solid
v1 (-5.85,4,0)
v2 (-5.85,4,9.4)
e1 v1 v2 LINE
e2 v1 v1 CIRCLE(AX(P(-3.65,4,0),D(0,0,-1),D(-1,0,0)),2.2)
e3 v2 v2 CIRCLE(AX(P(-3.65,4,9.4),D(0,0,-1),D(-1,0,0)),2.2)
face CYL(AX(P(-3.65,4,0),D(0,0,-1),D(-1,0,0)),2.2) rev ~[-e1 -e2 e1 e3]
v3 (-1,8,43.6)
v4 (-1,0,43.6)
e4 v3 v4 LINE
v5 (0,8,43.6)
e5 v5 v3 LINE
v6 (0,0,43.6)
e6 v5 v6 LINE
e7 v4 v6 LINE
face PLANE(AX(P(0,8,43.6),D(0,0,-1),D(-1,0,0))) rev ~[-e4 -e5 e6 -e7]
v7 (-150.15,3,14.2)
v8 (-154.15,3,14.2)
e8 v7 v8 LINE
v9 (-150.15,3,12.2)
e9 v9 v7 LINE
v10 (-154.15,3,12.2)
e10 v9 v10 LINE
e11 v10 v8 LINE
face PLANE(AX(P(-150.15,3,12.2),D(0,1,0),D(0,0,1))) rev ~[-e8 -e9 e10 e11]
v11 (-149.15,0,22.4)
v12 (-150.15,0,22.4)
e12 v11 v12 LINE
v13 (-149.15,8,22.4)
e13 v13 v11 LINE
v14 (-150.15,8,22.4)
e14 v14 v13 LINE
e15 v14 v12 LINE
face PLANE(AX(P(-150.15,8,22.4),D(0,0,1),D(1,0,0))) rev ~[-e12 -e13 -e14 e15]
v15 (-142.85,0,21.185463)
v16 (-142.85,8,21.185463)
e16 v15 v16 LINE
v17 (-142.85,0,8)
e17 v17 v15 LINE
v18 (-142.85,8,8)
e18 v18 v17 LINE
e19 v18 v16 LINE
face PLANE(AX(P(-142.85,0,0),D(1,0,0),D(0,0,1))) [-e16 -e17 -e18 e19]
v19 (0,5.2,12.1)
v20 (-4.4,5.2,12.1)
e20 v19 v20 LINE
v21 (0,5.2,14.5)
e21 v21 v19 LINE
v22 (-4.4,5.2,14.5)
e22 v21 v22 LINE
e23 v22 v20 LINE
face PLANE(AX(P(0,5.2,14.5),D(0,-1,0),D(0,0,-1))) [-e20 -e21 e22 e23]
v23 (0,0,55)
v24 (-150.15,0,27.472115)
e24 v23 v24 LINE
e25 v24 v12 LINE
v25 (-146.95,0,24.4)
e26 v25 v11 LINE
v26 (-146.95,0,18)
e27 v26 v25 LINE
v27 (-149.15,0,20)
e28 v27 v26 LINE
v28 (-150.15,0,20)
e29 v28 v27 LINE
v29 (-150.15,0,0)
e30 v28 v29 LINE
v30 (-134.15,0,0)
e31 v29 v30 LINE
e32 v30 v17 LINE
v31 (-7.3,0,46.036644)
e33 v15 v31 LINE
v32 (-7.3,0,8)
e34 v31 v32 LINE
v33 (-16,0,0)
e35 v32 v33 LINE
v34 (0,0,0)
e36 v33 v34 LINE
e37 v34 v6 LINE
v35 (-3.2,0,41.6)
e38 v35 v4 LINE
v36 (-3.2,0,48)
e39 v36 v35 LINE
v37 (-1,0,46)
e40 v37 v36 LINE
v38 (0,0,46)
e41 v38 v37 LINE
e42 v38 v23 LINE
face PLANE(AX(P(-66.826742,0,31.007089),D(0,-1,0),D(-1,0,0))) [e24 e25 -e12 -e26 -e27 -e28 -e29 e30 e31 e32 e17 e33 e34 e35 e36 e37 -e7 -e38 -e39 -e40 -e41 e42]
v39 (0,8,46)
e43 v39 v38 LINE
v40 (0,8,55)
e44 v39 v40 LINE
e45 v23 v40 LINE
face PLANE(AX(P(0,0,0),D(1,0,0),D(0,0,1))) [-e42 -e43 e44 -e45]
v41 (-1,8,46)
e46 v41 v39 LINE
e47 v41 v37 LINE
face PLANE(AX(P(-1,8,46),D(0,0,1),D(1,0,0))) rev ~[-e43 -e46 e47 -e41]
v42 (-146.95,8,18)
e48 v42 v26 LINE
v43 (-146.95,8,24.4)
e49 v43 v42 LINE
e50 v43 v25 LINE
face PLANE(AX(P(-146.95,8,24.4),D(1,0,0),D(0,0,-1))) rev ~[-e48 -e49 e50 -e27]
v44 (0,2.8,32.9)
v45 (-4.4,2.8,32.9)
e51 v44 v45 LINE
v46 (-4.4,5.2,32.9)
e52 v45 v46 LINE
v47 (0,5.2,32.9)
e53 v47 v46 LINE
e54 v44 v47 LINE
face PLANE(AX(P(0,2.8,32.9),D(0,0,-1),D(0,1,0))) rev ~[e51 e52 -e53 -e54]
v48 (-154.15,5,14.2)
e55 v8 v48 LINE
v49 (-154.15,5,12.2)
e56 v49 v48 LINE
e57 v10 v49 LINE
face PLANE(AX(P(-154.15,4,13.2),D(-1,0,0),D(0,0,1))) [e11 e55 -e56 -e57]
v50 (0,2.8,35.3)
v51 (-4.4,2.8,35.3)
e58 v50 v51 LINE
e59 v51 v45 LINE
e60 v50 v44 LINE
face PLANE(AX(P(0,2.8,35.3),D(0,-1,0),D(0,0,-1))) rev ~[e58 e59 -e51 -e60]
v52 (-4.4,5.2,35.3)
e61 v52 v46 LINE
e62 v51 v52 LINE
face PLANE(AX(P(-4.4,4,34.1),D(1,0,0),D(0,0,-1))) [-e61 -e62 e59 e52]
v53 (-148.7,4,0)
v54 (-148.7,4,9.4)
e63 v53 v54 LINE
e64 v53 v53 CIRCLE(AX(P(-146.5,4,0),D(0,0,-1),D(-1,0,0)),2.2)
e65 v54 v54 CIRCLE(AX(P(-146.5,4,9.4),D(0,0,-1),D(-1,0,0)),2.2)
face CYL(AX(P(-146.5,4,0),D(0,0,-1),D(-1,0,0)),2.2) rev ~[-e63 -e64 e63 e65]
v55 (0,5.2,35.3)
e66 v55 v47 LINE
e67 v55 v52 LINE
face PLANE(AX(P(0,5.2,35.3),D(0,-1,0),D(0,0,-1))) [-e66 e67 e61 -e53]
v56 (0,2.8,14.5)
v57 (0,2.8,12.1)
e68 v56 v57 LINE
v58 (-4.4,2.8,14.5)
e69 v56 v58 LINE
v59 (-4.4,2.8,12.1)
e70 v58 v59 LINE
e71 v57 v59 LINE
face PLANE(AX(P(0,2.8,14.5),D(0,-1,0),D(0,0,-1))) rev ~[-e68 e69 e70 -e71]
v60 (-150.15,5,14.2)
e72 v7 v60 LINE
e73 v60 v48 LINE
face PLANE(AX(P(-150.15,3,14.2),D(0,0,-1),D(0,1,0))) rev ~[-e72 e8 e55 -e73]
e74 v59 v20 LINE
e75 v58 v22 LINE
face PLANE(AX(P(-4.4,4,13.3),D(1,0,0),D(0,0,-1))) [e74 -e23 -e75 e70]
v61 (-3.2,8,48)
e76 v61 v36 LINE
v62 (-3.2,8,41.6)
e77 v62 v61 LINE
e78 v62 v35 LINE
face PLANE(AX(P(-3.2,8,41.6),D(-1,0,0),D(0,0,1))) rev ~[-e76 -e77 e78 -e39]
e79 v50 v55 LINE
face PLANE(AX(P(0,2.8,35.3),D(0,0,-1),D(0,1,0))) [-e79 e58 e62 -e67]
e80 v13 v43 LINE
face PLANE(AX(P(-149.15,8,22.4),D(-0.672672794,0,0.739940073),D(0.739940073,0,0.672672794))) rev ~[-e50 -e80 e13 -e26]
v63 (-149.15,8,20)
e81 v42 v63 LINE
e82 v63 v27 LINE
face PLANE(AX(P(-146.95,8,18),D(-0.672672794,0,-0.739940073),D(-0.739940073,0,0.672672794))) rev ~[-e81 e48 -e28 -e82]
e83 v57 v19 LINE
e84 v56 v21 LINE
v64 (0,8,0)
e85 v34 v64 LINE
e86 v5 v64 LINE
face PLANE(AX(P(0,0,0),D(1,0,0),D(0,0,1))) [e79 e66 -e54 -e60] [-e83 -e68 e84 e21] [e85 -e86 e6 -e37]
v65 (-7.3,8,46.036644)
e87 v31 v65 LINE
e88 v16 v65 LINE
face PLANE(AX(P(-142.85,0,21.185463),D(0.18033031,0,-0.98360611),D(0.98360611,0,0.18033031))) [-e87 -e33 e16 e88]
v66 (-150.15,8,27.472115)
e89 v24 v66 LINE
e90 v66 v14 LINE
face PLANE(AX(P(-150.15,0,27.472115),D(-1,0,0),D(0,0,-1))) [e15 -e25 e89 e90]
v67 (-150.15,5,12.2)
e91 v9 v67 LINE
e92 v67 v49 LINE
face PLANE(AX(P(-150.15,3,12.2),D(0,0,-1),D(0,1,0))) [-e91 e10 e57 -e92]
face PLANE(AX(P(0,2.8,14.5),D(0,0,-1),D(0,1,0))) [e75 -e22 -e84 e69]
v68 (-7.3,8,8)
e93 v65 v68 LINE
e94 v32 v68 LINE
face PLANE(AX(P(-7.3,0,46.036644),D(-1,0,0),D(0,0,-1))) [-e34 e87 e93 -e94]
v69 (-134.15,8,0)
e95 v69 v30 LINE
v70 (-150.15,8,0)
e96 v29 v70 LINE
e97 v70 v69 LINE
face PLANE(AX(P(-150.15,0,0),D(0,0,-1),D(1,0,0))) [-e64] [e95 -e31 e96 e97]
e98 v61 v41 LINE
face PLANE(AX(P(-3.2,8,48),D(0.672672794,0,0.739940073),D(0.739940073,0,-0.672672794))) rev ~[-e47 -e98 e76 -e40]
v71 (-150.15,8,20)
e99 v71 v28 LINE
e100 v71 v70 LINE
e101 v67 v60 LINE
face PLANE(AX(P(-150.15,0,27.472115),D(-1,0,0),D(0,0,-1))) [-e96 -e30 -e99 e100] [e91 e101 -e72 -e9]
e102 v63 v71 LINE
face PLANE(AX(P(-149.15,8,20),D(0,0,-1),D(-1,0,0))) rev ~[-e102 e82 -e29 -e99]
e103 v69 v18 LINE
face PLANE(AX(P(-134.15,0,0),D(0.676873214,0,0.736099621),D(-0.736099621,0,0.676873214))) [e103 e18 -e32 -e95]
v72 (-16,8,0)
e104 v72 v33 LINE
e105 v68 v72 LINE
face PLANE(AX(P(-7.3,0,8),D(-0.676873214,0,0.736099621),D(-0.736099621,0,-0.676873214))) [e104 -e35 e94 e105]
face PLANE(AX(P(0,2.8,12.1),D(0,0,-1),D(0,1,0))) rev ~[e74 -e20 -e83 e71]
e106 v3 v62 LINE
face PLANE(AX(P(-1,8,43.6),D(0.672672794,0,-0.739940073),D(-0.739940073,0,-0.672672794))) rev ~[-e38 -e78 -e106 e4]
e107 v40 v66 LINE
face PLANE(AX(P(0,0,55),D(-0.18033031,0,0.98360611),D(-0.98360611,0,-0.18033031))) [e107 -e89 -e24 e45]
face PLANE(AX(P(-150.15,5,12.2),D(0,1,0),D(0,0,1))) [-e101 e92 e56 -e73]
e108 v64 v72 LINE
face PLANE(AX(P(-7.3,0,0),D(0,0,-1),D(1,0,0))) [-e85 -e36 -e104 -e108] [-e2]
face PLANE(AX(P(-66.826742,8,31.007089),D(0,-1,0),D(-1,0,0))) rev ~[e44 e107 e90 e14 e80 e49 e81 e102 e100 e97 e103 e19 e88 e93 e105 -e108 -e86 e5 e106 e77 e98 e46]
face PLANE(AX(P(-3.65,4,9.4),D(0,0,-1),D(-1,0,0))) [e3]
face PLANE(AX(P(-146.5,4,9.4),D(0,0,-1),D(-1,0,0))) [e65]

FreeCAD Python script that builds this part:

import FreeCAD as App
import Part
import Sketcher

doc = App.newDocument("Part")
body = doc.addObject("PartDesign::Body", "Body")

# Sketch on XZ plane
sketch1 = body.newObject("Sketcher::SketchObject", "Sketch")
sketch1.AttachmentSupport = (doc.getObject("XZ_Plane"), [""])
sketch1.MapMode = "FlatFace"
sketch1.addGeometry([
    Part.LineSegment(App.Vector(0, 55, 0), App.Vector(0, 0, 0)),  # 0
    Part.LineSegment(App.Vector(0, 0, 0), App.Vector(-7.3, 0, 0)),  # 1
    Part.LineSegment(App.Vector(-7.3, 0, 0), App.Vector(-7.3, 46.036644, 0)),  # 2
    Part.LineSegment(App.Vector(-7.3, 46.036644, 0), App.Vector(-142.85, 21.185463, 0)),  # 3
    Part.LineSegment(App.Vector(-142.85, 21.185463, 0), App.Vector(-142.85, 0, 0)),  # 4
    Part.LineSegment(App.Vector(-142.85, 0, 0), App.Vector(-150.15, 0, 0)),  # 5
    Part.LineSegment(App.Vector(-150.15, 0, 0), App.Vector(-150.15, 27.472115, 0)),  # 6
    Part.LineSegment(App.Vector(-150.15, 27.472115, 0), App.Vector(0, 55, 0)),  # 7
], False)
sketch1.addConstraint([
    Sketcher.Constraint("Coincident", 0, 2, 1, 1),
    Sketcher.Constraint("Coincident", 1, 2, 2, 1),
    Sketcher.Constraint("Coincident", 2, 2, 3, 1),
    Sketcher.Constraint("Coincident", 3, 2, 4, 1),
    Sketcher.Constraint("Coincident", 4, 2, 5, 1),
    Sketcher.Constraint("Coincident", 5, 2, 6, 1),
    Sketcher.Constraint("Coincident", 6, 2, 7, 1),
    Sketcher.Constraint("Coincident", 7, 2, 0, 1),
    Sketcher.Constraint("Vertical", 0),
    Sketcher.Constraint("Horizontal", 1),
    Sketcher.Constraint("Vertical", 2),
    Sketcher.Constraint("Vertical", 4),
    Sketcher.Constraint("Horizontal", 5),
    Sketcher.Constraint("Vertical", 6),
    Sketcher.Constraint("Coincident", 0, 2, -1, 1),
    Sketcher.Constraint("PointOnObject", 4, 2, -1),
    Sketcher.Constraint("Parallel", 3, 7),
    Sketcher.Constraint("Equal", 1, 5),
    Sketcher.Constraint("DistanceY", 0, 2, 0, 1, 55.0),
    Sketcher.Constraint("DistanceX", 1, 2, 1, 1, 7.3),
    Sketcher.Constraint("DistanceX", 3, 2, -1, 1, 142.85),
    Sketcher.Constraint("Distance", 3, 137.809229),
    Sketcher.Constraint("DistanceY", 2, 1, 2, 2, 46.036644),
])
pad1 = body.newObject("PartDesign::Pad", "Pad")
pad1.Profile = sketch1
pad1.Length = 8
pad1.Reversed = True

# Sketch on XZ plane
sketch2 = body.newObject("Sketcher::SketchObject", "Sketch001")
sketch2.AttachmentSupport = (doc.getObject("XZ_Plane"), [""])
sketch2.MapMode = "FlatFace"
sketch2.AttachmentOffset = App.Placement(App.Vector(0, 0, -8), App.Rotation())
sketch2.addGeometry([
    Part.LineSegment(App.Vector(-1, 43.6, 0), App.Vector(-3.2, 41.6, 0)),  # 0
    Part.LineSegment(App.Vector(-3.2, 41.6, 0), App.Vector(-3.2, 48, 0)),  # 1
    Part.LineSegment(App.Vector(-3.2, 48, 0), App.Vector(-1, 46, 0)),  # 2
    Part.LineSegment(App.Vector(-1, 46, 0), App.Vector(0, 46, 0)),  # 3
    Part.LineSegment(App.Vector(0, 46, 0), App.Vector(0, 43.6, 0)),  # 4
    Part.LineSegment(App.Vector(0, 43.6, 0), App.Vector(-1, 43.6, 0)),  # 5
], False)
sketch2.addConstraint([
    Sketcher.Constraint("Coincident", 0, 2, 1, 1),
    Sketcher.Constraint("Coincident", 1, 2, 2, 1),
    Sketcher.Constraint("Coincident", 2, 2, 3, 1),
    Sketcher.Constraint("Coincident", 3, 2, 4, 1),
    Sketcher.Constraint("Coincident", 4, 2, 5, 1),
    Sketcher.Constraint("Coincident", 5, 2, 0, 1),
    Sketcher.Constraint("Vertical", 1),
    Sketcher.Constraint("Horizontal", 3),
    Sketcher.Constraint("Vertical", 4),
    Sketcher.Constraint("Horizontal", 5),
    Sketcher.Constraint("PointOnObject", 3, 2, -2),
    Sketcher.Constraint("Vertical", 2, 2, 5, 2),
    Sketcher.Constraint("Equal", 0, 2),
    Sketcher.Constraint("DistanceX", 3, 1, 3, 2, 1.0),
    Sketcher.Constraint("DistanceY", 1, 1, 1, 2, 6.4),
    Sketcher.Constraint("DistanceY", 4, 2, 4, 1, 2.4),
    Sketcher.Constraint("DistanceY", -1, 1, 1, 2, 48.0),
    Sketcher.Constraint("DistanceX", 0, 2, -1, 1, 3.2),
])
pocket1 = body.newObject("PartDesign::Pocket", "Pocket")
pocket1.Profile = sketch2
pocket1.Type = "ThroughAll"
pocket1.Reversed = True

# Sketch on XZ plane
sketch3 = body.newObject("Sketcher::SketchObject", "Sketch002")
sketch3.AttachmentSupport = (doc.getObject("XZ_Plane"), [""])
sketch3.MapMode = "FlatFace"
sketch3.AttachmentOffset = App.Placement(App.Vector(0, 0, -8), App.Rotation())
sketch3.addGeometry([
    Part.LineSegment(App.Vector(-150.15, 0, 0), App.Vector(-150.15, 8, 0)),  # 0
    Part.LineSegment(App.Vector(-150.15, 8, 0), App.Vector(-134.15, 8, 0)),  # 1
    Part.LineSegment(App.Vector(-134.15, 8, 0), App.Vector(-134.15, 0, 0)),  # 2
    Part.LineSegment(App.Vector(-134.15, 0, 0), App.Vector(-150.15, 0, 0)),  # 3
    Part.LineSegment(App.Vector(-16, 0, 0), App.Vector(-16, 8, 0)),  # 4
    Part.LineSegment(App.Vector(-16, 8, 0), App.Vector(0, 8, 0)),  # 5
    Part.LineSegment(App.Vector(0, 8, 0), App.Vector(0, 0, 0)),  # 6
    Part.LineSegment(App.Vector(0, 0, 0), App.Vector(-16, 0, 0)),  # 7
], False)
sketch3.addConstraint([
    Sketcher.Constraint("Coincident", 0, 2, 1, 1),
    Sketcher.Constraint("Coincident", 1, 2, 2, 1),
    Sketcher.Constraint("Coincident", 2, 2, 3, 1),
    Sketcher.Constraint("Coincident", 3, 2, 0, 1),
    Sketcher.Constraint("Coincident", 4, 2, 5, 1),
    Sketcher.Constraint("Coincident", 5, 2, 6, 1),
    Sketcher.Constraint("Coincident", 6, 2, 7, 1),
    Sketcher.Constraint("Coincident", 7, 2, 4, 1),
    Sketcher.Constraint("Vertical", 0),
    Sketcher.Constraint("Horizontal", 1),
    Sketcher.Constraint("Vertical", 2),
    Sketcher.Constraint("Horizontal", 3),
    Sketcher.Constraint("Vertical", 4),
    Sketcher.Constraint("Horizontal", 5),
    Sketcher.Constraint("Vertical", 6),
    Sketcher.Constraint("Horizontal", 7),
    Sketcher.Constraint("Coincident", 6, 2, -1, 1),
    Sketcher.Constraint("PointOnObject", 2, 2, -1),
    Sketcher.Constraint("Horizontal", 1, 2, 4, 2),
    Sketcher.Constraint("Equal", 3, 5),
    Sketcher.Constraint("DistanceX", 1, 1, 1, 2, 16.0),
    Sketcher.Constraint("DistanceY", 0, 1, 0, 2, 8.0),
    Sketcher.Constraint("DistanceX", 0, 2, -1, 1, 150.15),
])
pad2 = body.newObject("PartDesign::Pad", "Pad001")
pad2.Profile = sketch3
pad2.Length = 8

# Sketch on XZ plane
sketch4 = body.newObject("Sketcher::SketchObject", "Sketch003")
sketch4.AttachmentSupport = (doc.getObject("XZ_Plane"), [""])
sketch4.MapMode = "FlatFace"
sketch4.addGeometry([
    Part.LineSegment(App.Vector(-134.15, 8, 0), App.Vector(-142.85, 8, 0)),  # 0
    Part.LineSegment(App.Vector(-142.85, 8, 0), App.Vector(-134.15, 0, 0)),  # 1
    Part.LineSegment(App.Vector(-134.15, 0, 0), App.Vector(-134.15, 8, 0)),  # 2
    Part.LineSegment(App.Vector(-7.3, 8, 0), App.Vector(-16, 8, 0)),  # 3
    Part.LineSegment(App.Vector(-16, 8, 0), App.Vector(-16, 0, 0)),  # 4
    Part.LineSegment(App.Vector(-16, 0, 0), App.Vector(-7.3, 8, 0)),  # 5
], False)
sketch4.addConstraint([
    Sketcher.Constraint("Coincident", 0, 2, 1, 1),
    Sketcher.Constraint("Coincident", 1, 2, 2, 1),
    Sketcher.Constraint("Coincident", 2, 2, 0, 1),
    Sketcher.Constraint("Coincident", 3, 2, 4, 1),
    Sketcher.Constraint("Coincident", 4, 2, 5, 1),
    Sketcher.Constraint("Coincident", 5, 2, 3, 1),
    Sketcher.Constraint("Horizontal", 0),
    Sketcher.Constraint("Vertical", 2),
    Sketcher.Constraint("Horizontal", 3),
    Sketcher.Constraint("Vertical", 4),
    Sketcher.Constraint("PointOnObject", 1, 2, -1),
    Sketcher.Constraint("PointOnObject", 4, 2, -1),
    Sketcher.Constraint("Horizontal", 2, 2, 3, 2),
    Sketcher.Constraint("Equal", 0, 3),
    Sketcher.Constraint("DistanceY", 2, 1, 2, 2, 8.0),
    Sketcher.Constraint("DistanceX", 0, 2, 0, 1, 8.7),
    Sketcher.Constraint("DistanceX", 3, 2, -1, 1, 16.0),
    Sketcher.Constraint("DistanceX", 0, 2, -1, 1, 142.85),
])
pocket2 = body.newObject("PartDesign::Pocket", "Pocket001")
pocket2.Profile = sketch4
pocket2.Type = "ThroughAll"

# Sketch on YZ plane
sketch5 = body.newObject("Sketcher::SketchObject", "Sketch004")
sketch5.AttachmentSupport = (doc.getObject("YZ_Plane"), [""])
sketch5.MapMode = "FlatFace"
sketch5.addGeometry([
    Part.LineSegment(App.Vector(5.2, 35.3, 0), App.Vector(2.8, 35.3, 0)),  # 0
    Part.LineSegment(App.Vector(2.8, 35.3, 0), App.Vector(2.8, 32.9, 0)),  # 1
    Part.LineSegment(App.Vector(2.8, 32.9, 0), App.Vector(5.2, 32.9, 0)),  # 2
    Part.LineSegment(App.Vector(5.2, 32.9, 0), App.Vector(5.2, 35.3, 0)),  # 3
    Part.LineSegment(App.Vector(5.2, 14.5, 0), App.Vector(2.8, 14.5, 0)),  # 4
    Part.LineSegment(App.Vector(2.8, 14.5, 0), App.Vector(2.8, 12.1, 0)),  # 5
    Part.LineSegment(App.Vector(2.8, 12.1, 0), App.Vector(5.2, 12.1, 0)),  # 6
    Part.LineSegment(App.Vector(5.2, 12.1, 0), App.Vector(5.2, 14.5, 0)),  # 7
], False)
sketch5.addConstraint([
    Sketcher.Constraint("Coincident", 0, 2, 1, 1),
    Sketcher.Constraint("Coincident", 1, 2, 2, 1),
    Sketcher.Constraint("Coincident", 2, 2, 3, 1),
    Sketcher.Constraint("Coincident", 3, 2, 0, 1),
    Sketcher.Constraint("Coincident", 4, 2, 5, 1),
    Sketcher.Constraint("Coincident", 5, 2, 6, 1),
    Sketcher.Constraint("Coincident", 6, 2, 7, 1),
    Sketcher.Constraint("Coincident", 7, 2, 4, 1),
    Sketcher.Constraint("Horizontal", 0),
    Sketcher.Constraint("Vertical", 1),
    Sketcher.Constraint("Horizontal", 2),
    Sketcher.Constraint("Vertical", 3),
    Sketcher.Constraint("Horizontal", 4),
    Sketcher.Constraint("Vertical", 5),
    Sketcher.Constraint("Horizontal", 6),
    Sketcher.Constraint("Vertical", 7),
    Sketcher.Constraint("Vertical", 1, 2, 4, 2),
    Sketcher.Constraint("Vertical", 3, 2, 6, 2),
    Sketcher.Constraint("Equal", 6, 1),
    Sketcher.Constraint("Equal", 3, 5),
    Sketcher.Constraint("DistanceX", 0, 2, 0, 1, 2.4),
    Sketcher.Constraint("DistanceX", -1, 1, 0, 2, 2.8),
    Sketcher.Constraint("DistanceY", -1, 1, 0, 2, 35.3),
    Sketcher.Constraint("DistanceY", -1, 1, 4, 2, 14.5),
])
pocket3 = body.newObject("PartDesign::Pocket", "Pocket002")
pocket3.Profile = sketch5
pocket3.Length = 4.4

# Sketch on YZ plane
sketch6 = body.newObject("Sketcher::SketchObject", "Sketch005")
sketch6.AttachmentSupport = (doc.getObject("YZ_Plane"), [""])
sketch6.MapMode = "FlatFace"
sketch6.AttachmentOffset = App.Placement(App.Vector(0, 0, -150.15), App.Rotation())
sketch6.addGeometry([
    Part.LineSegment(App.Vector(5, 12.2, 0), App.Vector(3, 12.2, 0)),
    Part.LineSegment(App.Vector(3, 12.2, 0), App.Vector(3, 14.2, 0)),
    Part.LineSegment(App.Vector(3, 14.2, 0), App.Vector(5, 14.2, 0)),
    Part.LineSegment(App.Vector(5, 14.2, 0), App.Vector(5, 12.2, 0)),
], False)
sketch6.addConstraint([
    Sketcher.Constraint("Coincident", 0, 2, 1, 1),
    Sketcher.Constraint("Coincident", 1, 2, 2, 1),
    Sketcher.Constraint("Coincident", 2, 2, 3, 1),
    Sketcher.Constraint("Coincident", 3, 2, 0, 1),
    Sketcher.Constraint("Horizontal", 0),
    Sketcher.Constraint("Vertical", 1),
    Sketcher.Constraint("Horizontal", 2),
    Sketcher.Constraint("Vertical", 3),
    Sketcher.Constraint("Equal", 2, 1),
    Sketcher.Constraint("DistanceX", 0, 2, 0, 1, 2.0),
    Sketcher.Constraint("DistanceX", -1, 1, 0, 2, 3.0),
    Sketcher.Constraint("DistanceY", -1, 1, 0, 2, 12.2),
])
pad3 = body.newObject("PartDesign::Pad", "Pad002")
pad3.Profile = sketch6
pad3.Length = 4
pad3.Reversed = True

# Sketch on XZ plane
sketch7 = body.newObject("Sketcher::SketchObject", "Sketch006")
sketch7.AttachmentSupport = (doc.getObject("XZ_Plane"), [""])
sketch7.MapMode = "FlatFace"
sketch7.AttachmentOffset = App.Placement(App.Vector(0, 0, -8), App.Rotation())
sketch7.addGeometry([
    Part.LineSegment(App.Vector(-150.15, 22.4, 0), App.Vector(-149.15, 22.4, 0)),  # 0
    Part.LineSegment(App.Vector(-149.15, 22.4, 0), App.Vector(-146.95, 24.4, 0)),  # 1
    Part.LineSegment(App.Vector(-146.95, 24.4, 0), App.Vector(-146.95, 18, 0)),  # 2
    Part.LineSegment(App.Vector(-146.95, 18, 0), App.Vector(-149.15, 20, 0)),  # 3
    Part.LineSegment(App.Vector(-149.15, 20, 0), App.Vector(-150.15, 20, 0)),  # 4
    Part.LineSegment(App.Vector(-150.15, 20, 0), App.Vector(-150.15, 22.4, 0)),  # 5
], False)
sketch7.addConstraint([
    Sketcher.Constraint("Coincident", 0, 2, 1, 1),
    Sketcher.Constraint("Coincident", 1, 2, 2, 1),
    Sketcher.Constraint("Coincident", 2, 2, 3, 1),
    Sketcher.Constraint("Coincident", 3, 2, 4, 1),
    Sketcher.Constraint("Coincident", 4, 2, 5, 1),
    Sketcher.Constraint("Coincident", 5, 2, 0, 1),
    Sketcher.Constraint("Horizontal", 0),
    Sketcher.Constraint("Vertical", 2),
    Sketcher.Constraint("Horizontal", 4),
    Sketcher.Constraint("Vertical", 5),
    Sketcher.Constraint("Vertical", 0, 2, 3, 2),
    Sketcher.Constraint("Equal", 1, 3),
    Sketcher.Constraint("DistanceX", 0, 1, 0, 2, 1.0),
    Sketcher.Constraint("DistanceY", 2, 2, 2, 1, 6.4),
    Sketcher.Constraint("DistanceY", 5, 1, 5, 2, 2.4),
    Sketcher.Constraint("DistanceY", -1, 1, 2, 2, 18.0),
    Sketcher.Constraint("DistanceX", 0, 2, 1, 2, 2.2),
    Sketcher.Constraint("DistanceX", 0, 2, -1, 1, 149.15),
])
pocket4 = body.newObject("PartDesign::Pocket", "Pocket003")
pocket4.Profile = sketch7
pocket4.Type = "ThroughAll"
pocket4.Reversed = True

# Sketch on XY plane
sketch8 = body.newObject("Sketcher::SketchObject", "Sketch007")
sketch8.AttachmentSupport = (doc.getObject("XY_Plane"), [""])
sketch8.MapMode = "FlatFace"
sketch8.addGeometry([
    Part.Circle(App.Vector(-3.65, 4, 0), App.Vector(0, 0, 1), 2.2),
    Part.Circle(App.Vector(-146.5, 4, 0), App.Vector(0, 0, 1), 2.2),
], False)
sketch8.addConstraint([
    Sketcher.Constraint("Equal", 0, 1),
    Sketcher.Constraint("Horizontal", 0, 3, 1, 3),
    Sketcher.Constraint("Diameter", 0, 4.4),
    Sketcher.Constraint("DistanceY", -1, 1, 0, 3, 4.0),
    Sketcher.Constraint("DistanceX", 1, 3, -1, 1, 146.5),
    Sketcher.Constraint("DistanceX", 0, 3, -1, 1, 3.65),
])
pocket5 = body.newObject("PartDesign::Pocket", "Pocket004")
pocket5.Profile = sketch8
pocket5.Length = 9.4
pocket5.Reversed = True

doc.recompute()
